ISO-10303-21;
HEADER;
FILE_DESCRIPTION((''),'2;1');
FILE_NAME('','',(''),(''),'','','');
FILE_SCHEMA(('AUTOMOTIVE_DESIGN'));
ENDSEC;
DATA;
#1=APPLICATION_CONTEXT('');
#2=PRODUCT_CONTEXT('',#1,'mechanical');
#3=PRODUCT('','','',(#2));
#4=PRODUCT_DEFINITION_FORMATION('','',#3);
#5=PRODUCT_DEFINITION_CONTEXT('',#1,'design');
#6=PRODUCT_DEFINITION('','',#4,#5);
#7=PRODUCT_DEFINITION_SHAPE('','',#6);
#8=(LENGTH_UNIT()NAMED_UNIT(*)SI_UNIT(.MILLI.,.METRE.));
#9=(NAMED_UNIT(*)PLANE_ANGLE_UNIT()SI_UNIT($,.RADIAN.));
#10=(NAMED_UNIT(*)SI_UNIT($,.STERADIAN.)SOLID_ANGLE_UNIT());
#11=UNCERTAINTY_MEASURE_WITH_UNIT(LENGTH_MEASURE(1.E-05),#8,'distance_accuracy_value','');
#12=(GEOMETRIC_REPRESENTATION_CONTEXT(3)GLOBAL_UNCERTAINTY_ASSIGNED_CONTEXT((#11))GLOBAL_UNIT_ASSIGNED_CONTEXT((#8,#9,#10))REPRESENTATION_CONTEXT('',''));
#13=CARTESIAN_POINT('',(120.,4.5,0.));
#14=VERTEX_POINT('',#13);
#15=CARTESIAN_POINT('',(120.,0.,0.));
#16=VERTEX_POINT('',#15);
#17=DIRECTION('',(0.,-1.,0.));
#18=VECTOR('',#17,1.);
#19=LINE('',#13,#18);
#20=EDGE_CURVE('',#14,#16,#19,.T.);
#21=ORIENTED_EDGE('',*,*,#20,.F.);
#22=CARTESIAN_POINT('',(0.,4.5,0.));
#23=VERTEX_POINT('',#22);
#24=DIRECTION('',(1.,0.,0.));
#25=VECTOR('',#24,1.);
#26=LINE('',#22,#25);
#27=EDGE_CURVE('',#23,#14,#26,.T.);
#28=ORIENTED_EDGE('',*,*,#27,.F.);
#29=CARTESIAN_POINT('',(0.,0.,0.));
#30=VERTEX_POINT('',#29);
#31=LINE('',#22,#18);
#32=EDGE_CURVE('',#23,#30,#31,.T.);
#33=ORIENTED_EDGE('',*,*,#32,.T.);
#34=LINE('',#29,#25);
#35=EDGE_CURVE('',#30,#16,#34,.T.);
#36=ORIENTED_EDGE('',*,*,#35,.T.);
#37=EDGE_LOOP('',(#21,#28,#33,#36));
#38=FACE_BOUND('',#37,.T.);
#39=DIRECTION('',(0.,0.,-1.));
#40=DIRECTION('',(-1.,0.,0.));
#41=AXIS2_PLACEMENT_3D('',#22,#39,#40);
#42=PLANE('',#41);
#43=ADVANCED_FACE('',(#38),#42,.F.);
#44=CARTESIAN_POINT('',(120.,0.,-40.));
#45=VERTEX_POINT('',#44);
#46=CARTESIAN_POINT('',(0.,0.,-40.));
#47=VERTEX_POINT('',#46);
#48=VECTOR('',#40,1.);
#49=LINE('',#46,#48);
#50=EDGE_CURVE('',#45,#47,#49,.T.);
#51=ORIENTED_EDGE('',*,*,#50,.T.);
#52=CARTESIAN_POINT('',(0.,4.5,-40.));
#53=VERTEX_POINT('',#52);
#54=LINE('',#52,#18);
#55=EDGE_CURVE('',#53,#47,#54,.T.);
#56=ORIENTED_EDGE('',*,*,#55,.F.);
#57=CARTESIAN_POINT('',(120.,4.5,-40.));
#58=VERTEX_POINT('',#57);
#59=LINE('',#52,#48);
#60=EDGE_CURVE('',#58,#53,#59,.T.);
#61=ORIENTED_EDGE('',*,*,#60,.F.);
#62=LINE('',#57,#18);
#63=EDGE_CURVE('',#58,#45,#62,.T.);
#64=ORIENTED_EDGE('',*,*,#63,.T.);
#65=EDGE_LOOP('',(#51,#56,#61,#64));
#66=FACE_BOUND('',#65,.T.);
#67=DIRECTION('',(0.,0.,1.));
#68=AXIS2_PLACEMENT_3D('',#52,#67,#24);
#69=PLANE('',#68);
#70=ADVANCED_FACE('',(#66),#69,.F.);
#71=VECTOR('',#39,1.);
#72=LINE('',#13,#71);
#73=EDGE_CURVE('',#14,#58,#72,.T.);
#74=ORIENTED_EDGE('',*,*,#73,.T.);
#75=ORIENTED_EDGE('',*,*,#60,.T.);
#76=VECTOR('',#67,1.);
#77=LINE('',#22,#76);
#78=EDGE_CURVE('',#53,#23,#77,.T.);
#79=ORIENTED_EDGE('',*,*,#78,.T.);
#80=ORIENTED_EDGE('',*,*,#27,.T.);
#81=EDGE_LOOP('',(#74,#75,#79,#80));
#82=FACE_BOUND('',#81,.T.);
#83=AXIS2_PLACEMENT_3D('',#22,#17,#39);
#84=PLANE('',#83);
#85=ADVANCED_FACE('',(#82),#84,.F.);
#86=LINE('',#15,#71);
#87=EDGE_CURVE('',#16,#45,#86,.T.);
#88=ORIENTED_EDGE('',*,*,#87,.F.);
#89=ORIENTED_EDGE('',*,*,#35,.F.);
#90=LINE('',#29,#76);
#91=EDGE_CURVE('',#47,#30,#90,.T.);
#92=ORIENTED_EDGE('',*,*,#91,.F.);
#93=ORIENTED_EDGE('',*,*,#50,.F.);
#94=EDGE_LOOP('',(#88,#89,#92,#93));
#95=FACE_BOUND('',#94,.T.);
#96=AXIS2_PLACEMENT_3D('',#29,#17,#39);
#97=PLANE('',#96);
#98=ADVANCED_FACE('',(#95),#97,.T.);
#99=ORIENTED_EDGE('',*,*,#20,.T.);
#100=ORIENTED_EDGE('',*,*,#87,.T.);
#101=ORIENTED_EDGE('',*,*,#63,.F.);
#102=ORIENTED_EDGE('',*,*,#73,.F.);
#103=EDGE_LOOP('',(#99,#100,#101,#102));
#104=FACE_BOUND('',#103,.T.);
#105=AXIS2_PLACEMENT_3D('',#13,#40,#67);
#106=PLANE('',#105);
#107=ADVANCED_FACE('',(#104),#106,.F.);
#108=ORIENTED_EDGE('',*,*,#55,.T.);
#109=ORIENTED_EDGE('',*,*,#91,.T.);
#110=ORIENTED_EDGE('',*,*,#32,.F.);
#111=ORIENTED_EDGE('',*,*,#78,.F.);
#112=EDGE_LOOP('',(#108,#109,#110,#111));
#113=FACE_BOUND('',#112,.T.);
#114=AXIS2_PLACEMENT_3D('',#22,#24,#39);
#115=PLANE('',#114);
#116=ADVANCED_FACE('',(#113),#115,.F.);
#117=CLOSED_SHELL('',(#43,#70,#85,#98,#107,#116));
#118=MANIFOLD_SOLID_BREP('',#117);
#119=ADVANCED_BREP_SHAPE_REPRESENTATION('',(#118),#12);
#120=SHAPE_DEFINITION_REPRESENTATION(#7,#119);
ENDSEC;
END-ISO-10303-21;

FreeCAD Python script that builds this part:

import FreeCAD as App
import Part
import Sketcher

V = App.Vector

doc = App.newDocument("Part")
body = doc.addObject("PartDesign::Body", "Body")

# Sketch on XZ plane
sketch1 = doc.addObject("Sketcher::SketchObject", "Sketch")
body.addObject(sketch1)
sketch1.AttachmentSupport = (doc.XZ_Plane, [""])
sketch1.MapMode = "FlatFace"
sketch1.addGeometry(Part.LineSegment(V(0, -40, 0), V(0, 0, 0)), False)
sketch1.addGeometry(Part.LineSegment(V(0, 0, 0), V(120, 0, 0)), False)
sketch1.addGeometry(Part.LineSegment(V(120, 0, 0), V(120, -40, 0)), False)
sketch1.addGeometry(Part.LineSegment(V(120, -40, 0), V(0, -40, 0)), False)
sketch1.addConstraint(Sketcher.Constraint("Coincident", 0, 2, 1, 1))
sketch1.addConstraint(Sketcher.Constraint("Coincident", 1, 2, 2, 1))
sketch1.addConstraint(Sketcher.Constraint("Coincident", 2, 2, 3, 1))
sketch1.addConstraint(Sketcher.Constraint("Coincident", 3, 2, 0, 1))
sketch1.addConstraint(Sketcher.Constraint("Vertical", 0))
sketch1.addConstraint(Sketcher.Constraint("Horizontal", 1))
sketch1.addConstraint(Sketcher.Constraint("Vertical", 2))
sketch1.addConstraint(Sketcher.Constraint("Horizontal", 3))
sketch1.addConstraint(Sketcher.Constraint("Coincident", 0, 2, -1, 1))
sketch1.addConstraint(Sketcher.Constraint("DistanceX", 1, 1, 1, 2, 120.0))
sketch1.addConstraint(Sketcher.Constraint("DistanceY", 0, 1, 0, 2, 40.0))
pad1 = doc.addObject("PartDesign::Pad", "Pad")
body.addObject(pad1)
pad1.Profile = sketch1
pad1.Length = 4.5
pad1.Reversed = True

doc.recompute()
